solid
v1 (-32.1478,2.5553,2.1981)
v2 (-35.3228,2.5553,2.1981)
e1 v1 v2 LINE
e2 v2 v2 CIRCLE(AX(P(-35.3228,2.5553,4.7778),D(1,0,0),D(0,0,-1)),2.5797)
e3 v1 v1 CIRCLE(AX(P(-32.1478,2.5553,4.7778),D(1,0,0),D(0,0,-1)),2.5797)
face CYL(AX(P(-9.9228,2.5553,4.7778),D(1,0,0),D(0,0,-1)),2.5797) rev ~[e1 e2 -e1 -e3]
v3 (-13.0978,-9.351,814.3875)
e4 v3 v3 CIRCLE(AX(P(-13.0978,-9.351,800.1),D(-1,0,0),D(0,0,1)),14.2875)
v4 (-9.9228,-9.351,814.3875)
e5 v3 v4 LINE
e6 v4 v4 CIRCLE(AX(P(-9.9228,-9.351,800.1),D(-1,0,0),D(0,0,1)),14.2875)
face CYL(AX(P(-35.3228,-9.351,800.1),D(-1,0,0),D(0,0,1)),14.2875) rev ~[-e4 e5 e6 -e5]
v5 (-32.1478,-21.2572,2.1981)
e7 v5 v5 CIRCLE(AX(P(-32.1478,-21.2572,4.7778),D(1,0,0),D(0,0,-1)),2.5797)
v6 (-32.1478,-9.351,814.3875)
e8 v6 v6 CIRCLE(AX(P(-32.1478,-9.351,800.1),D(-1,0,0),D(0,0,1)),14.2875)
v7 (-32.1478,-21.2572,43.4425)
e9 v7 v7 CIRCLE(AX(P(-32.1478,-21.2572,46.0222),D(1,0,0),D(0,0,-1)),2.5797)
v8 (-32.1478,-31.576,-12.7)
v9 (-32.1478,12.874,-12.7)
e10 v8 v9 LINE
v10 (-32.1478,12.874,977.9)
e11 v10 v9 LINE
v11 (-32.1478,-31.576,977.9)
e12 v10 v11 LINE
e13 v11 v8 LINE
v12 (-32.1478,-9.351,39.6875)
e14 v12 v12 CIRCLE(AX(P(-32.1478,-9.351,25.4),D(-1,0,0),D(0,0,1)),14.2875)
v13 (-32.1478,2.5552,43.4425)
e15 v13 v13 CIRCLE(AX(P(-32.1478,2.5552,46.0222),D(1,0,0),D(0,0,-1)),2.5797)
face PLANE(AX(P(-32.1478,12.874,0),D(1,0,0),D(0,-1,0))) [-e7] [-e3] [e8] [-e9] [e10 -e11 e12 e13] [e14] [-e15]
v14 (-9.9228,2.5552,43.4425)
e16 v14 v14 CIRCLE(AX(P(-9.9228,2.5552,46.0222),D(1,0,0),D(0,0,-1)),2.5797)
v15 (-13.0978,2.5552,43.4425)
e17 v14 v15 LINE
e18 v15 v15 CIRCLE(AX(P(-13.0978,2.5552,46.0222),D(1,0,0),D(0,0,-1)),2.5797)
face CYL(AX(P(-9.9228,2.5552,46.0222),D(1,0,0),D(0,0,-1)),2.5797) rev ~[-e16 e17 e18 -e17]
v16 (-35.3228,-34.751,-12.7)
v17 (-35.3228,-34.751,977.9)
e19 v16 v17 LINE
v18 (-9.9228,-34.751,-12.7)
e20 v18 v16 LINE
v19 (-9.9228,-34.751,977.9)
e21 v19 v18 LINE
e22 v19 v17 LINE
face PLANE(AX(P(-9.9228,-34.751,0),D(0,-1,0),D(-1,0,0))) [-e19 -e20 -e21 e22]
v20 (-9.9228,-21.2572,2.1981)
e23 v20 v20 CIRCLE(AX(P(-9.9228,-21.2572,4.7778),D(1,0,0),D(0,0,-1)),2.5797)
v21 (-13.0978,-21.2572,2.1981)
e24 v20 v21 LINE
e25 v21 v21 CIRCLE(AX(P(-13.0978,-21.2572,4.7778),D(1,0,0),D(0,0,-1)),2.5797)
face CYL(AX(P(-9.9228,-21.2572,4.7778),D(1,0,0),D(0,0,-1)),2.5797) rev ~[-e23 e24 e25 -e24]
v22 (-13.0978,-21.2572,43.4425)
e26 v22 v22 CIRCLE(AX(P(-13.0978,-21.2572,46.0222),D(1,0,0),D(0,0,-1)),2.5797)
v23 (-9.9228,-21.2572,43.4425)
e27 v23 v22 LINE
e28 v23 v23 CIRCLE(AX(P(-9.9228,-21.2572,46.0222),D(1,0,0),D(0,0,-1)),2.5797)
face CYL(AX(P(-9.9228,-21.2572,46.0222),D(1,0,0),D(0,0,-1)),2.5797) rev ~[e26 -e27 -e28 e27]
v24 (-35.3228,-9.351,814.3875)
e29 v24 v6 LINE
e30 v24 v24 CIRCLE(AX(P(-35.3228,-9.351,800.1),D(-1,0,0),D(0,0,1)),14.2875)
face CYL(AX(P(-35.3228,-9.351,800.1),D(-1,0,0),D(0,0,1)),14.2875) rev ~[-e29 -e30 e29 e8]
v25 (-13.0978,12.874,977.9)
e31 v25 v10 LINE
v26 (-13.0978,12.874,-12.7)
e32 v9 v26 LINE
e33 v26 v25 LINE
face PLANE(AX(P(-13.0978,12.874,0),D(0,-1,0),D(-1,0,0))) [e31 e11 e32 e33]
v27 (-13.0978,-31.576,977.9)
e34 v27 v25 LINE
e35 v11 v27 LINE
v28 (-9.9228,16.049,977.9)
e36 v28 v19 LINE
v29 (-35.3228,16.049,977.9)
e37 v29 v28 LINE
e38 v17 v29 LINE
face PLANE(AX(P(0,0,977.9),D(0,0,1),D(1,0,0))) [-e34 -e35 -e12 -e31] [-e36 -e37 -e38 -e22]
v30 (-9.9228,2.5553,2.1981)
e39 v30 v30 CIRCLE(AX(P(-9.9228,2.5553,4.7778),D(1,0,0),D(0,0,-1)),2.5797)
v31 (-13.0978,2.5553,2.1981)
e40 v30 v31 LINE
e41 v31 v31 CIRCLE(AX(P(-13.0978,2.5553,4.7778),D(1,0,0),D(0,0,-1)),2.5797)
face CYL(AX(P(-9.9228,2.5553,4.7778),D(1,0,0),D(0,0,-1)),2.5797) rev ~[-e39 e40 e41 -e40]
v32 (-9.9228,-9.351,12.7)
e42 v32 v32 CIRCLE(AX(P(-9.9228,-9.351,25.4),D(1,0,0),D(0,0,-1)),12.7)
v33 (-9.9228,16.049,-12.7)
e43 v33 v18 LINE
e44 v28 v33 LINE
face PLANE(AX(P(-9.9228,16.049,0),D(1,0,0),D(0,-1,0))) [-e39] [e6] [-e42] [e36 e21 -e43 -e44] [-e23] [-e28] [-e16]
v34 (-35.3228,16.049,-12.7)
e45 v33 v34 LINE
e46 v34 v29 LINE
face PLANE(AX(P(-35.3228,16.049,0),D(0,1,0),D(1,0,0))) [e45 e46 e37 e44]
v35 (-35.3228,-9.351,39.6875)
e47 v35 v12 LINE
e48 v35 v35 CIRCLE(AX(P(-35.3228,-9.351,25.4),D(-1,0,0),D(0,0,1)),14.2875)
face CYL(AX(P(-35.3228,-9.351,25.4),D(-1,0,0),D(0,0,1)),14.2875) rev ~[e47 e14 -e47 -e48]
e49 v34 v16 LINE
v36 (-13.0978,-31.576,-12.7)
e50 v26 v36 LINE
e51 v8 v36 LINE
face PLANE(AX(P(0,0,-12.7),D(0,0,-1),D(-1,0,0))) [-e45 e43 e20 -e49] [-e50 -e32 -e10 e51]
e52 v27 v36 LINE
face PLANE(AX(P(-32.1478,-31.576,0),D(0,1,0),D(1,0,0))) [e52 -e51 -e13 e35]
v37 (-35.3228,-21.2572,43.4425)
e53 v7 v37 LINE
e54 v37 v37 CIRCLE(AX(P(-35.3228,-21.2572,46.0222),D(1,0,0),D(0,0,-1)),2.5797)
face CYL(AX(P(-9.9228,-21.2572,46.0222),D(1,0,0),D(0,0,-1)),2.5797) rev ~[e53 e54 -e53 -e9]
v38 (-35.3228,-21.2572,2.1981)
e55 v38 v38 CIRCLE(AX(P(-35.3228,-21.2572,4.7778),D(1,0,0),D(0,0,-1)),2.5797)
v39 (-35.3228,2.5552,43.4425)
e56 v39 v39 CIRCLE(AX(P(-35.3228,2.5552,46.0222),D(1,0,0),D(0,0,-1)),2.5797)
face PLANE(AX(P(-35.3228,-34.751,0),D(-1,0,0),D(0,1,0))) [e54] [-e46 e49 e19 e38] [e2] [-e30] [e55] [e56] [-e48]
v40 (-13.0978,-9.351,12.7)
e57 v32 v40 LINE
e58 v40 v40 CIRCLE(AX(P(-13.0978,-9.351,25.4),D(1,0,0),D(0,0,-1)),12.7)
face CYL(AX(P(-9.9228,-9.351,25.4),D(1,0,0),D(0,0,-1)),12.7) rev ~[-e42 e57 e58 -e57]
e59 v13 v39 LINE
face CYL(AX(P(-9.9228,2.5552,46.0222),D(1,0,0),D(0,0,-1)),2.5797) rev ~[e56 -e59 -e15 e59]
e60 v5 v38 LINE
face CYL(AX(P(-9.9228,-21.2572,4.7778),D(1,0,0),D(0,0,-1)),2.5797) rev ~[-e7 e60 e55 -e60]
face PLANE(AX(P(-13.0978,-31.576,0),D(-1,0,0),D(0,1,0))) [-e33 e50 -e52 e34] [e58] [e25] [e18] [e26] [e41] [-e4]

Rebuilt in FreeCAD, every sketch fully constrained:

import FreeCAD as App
import Part
import Sketcher
from FreeCAD import Vector
Q = App.Units.Quantity

doc = App.newDocument("Part")
params = doc.addObject("Spreadsheet::Sheet", "Params")
for row, (alias, value) in enumerate([
    ("sketch1_width", "1 in"),
    ("sketch1_height", "2 in"),
    ("pad1_length", "38.5 in"),
    ("sketch2_diameter", "1.125 in"),
    ("pocket1_length", "0.5 in"),
    ("sketch3_diameter", "1.125 in"),
    ("pocket2_length", "1 in"),
    ("sketch4_diameter", "1 in"),
    ("pocket3_length", "0.5 in"),
    ("sketch5_diameter", "0.203126 in"),
    ("pocket4_length", "1 in"),
    ("sketch6_width", "1 in"),
    ("sketch6_height", "2 in"),
    ("pad2_length", "0.5 in"),
], start=1):
    params.set(f"A{row}", alias)
    params.set(f"B{row}", "=" + value)
    params.setAlias(f"B{row}", alias)

body = doc.addObject("PartDesign::Body", "Body")

# Sketch on XY plane
sketch1 = body.newObject("Sketcher::SketchObject", "Sketch")
sketch1.AttachmentSupport = (doc.getObject("XY_Plane"), [""])
sketch1.MapMode = "FlatFace"
sketch1.addGeometry([
    Part.LineSegment(Vector(-10, 16, 0), Vector(-35, 16, 0)),  # 0
    Part.LineSegment(Vector(-35, 16, 0), Vector(-35, -35, 0)),  # 1
    Part.LineSegment(Vector(-35, -35, 0), Vector(-10, -35, 0)),  # 2
    Part.LineSegment(Vector(-10, -35, 0), Vector(-10, 16, 0)),  # 3
    Part.LineSegment(Vector(-32, 13, 0), Vector(-13, 13, 0)),  # 4
    Part.LineSegment(Vector(-13, 13, 0), Vector(-13, -32, 0)),  # 5
    Part.LineSegment(Vector(-13, -32, 0), Vector(-32, -32, 0)),  # 6
    Part.LineSegment(Vector(-32, -32, 0), Vector(-32, 13, 0)),  # 7
], False)
sketch1.addConstraint([
    Sketcher.Constraint("Coincident", 0, 2, 1, 1),
    Sketcher.Constraint("Coincident", 1, 2, 2, 1),
    Sketcher.Constraint("Coincident", 2, 2, 3, 1),
    Sketcher.Constraint("Coincident", 3, 2, 0, 1),
    Sketcher.Constraint("Coincident", 4, 2, 5, 1),
    Sketcher.Constraint("Coincident", 5, 2, 6, 1),
    Sketcher.Constraint("Coincident", 6, 2, 7, 1),
    Sketcher.Constraint("Coincident", 7, 2, 4, 1),
    Sketcher.Constraint("Horizontal", 0),
    Sketcher.Constraint("Vertical", 1),
    Sketcher.Constraint("Horizontal", 2),
    Sketcher.Constraint("Vertical", 3),
    Sketcher.Constraint("Horizontal", 4),
    Sketcher.Constraint("Vertical", 5),
    Sketcher.Constraint("Horizontal", 6),
    Sketcher.Constraint("Vertical", 7),
    Sketcher.Constraint("DistanceX", 0, 2, 0, 1, Q("1 in")),
    Sketcher.Constraint("DistanceY", 1, 2, 1, 1, Q("2 in")),
    Sketcher.Constraint("DistanceX", 4, 2, 3, 2, Q("0.125 in")),
    Sketcher.Constraint("DistanceY", 4, 2, 3, 2, Q("0.125 in")),
    Sketcher.Constraint("DistanceY", 2, 2, 5, 2, Q("0.125 in")),
    Sketcher.Constraint("DistanceX", 1, 2, 6, 2, Q("0.125 in")),
    Sketcher.Constraint("DistanceX", 0, 2, -1, 1, 35.3228),
    Sketcher.Constraint("DistanceY", -1, 1, 0, 2, 16.049),
])
sketch1.setExpression("Constraints[16]", "Params.sketch1_width")
sketch1.setExpression("Constraints[17]", "Params.sketch1_height")
pad1 = body.newObject("PartDesign::Pad", "Pad")
pad1.Profile = sketch1
pad1.setExpression("Length", "Params.pad1_length")

# Sketch on YZ plane
sketch2 = body.newObject("Sketcher::SketchObject", "Sketch001")
sketch2.AttachmentSupport = (doc.getObject("YZ_Plane"), [""])
sketch2.MapMode = "FlatFace"
sketch2.AttachmentOffset = App.Placement(Vector(0, 0, -35.3228), App.Rotation())
sketch2.addGeometry(Part.Circle(Vector(-9, 25, 0), Vector(0, 0, 1), 14), False)
sketch2.addConstraint([
    Sketcher.Constraint("Diameter", 0, Q("1.125 in")),
    Sketcher.Constraint("DistanceY", -1, 1, 0, 3, Q("1 in")),
    Sketcher.Constraint("DistanceX", 0, 3, -1, 1, 9.351),
])
sketch2.setExpression("Constraints[0]", "Params.sketch2_diameter")
pocket1 = body.newObject("PartDesign::Pocket", "Pocket")
pocket1.Profile = sketch2
pocket1.setExpression("Length", "Params.pocket1_length")
pocket1.Reversed = True

# Sketch on YZ plane
sketch3 = body.newObject("Sketcher::SketchObject", "Sketch002")
sketch3.AttachmentSupport = (doc.getObject("YZ_Plane"), [""])
sketch3.MapMode = "FlatFace"
sketch3.AttachmentOffset = App.Placement(Vector(0, 0, -35.3228), App.Rotation())
sketch3.addGeometry(Part.Circle(Vector(-9, 800, 0), Vector(0, 0, 1), 14), False)
sketch3.addConstraint([
    Sketcher.Constraint("Diameter", 0, Q("1.125 in")),
    Sketcher.Constraint("DistanceY", -1, 1, 0, 3, Q("31.5 in")),
    Sketcher.Constraint("DistanceX", 0, 3, -1, 1, 9.351),
])
sketch3.setExpression("Constraints[0]", "Params.sketch3_diameter")
pocket2 = body.newObject("PartDesign::Pocket", "Pocket001")
pocket2.Profile = sketch3
pocket2.setExpression("Length", "Params.pocket2_length")
pocket2.Reversed = True

# Sketch on YZ plane
sketch4 = body.newObject("Sketcher::SketchObject", "Sketch003")
sketch4.AttachmentSupport = (doc.getObject("YZ_Plane"), [""])
sketch4.MapMode = "FlatFace"
sketch4.AttachmentOffset = App.Placement(Vector(0, 0, -9.9228), App.Rotation())
sketch4.addGeometry(Part.Circle(Vector(-9, 25, 0), Vector(0, 0, 1), 13), False)
sketch4.addConstraint([
    Sketcher.Constraint("Diameter", 0, Q("1 in")),
    Sketcher.Constraint("DistanceY", -1, 1, 0, 3, Q("1 in")),
    Sketcher.Constraint("DistanceX", 0, 3, -1, 1, 9.351),
])
sketch4.setExpression("Constraints[0]", "Params.sketch4_diameter")
pocket3 = body.newObject("PartDesign::Pocket", "Pocket002")
pocket3.Profile = sketch4
pocket3.setExpression("Length", "Params.pocket3_length")

# Sketch on YZ plane
sketch5 = body.newObject("Sketcher::SketchObject", "Sketch004")
sketch5.AttachmentSupport = (doc.getObject("YZ_Plane"), [""])
sketch5.MapMode = "FlatFace"
sketch5.AttachmentOffset = App.Placement(Vector(0, 0, -9.9228), App.Rotation())
sketch5.addGeometry([
    Part.Circle(Vector(2.6, 4.8, 0), Vector(0, 0, 1), 2.6),
    Part.Circle(Vector(-21.3, 4.8, 0), Vector(0, 0, 1), 2.6),
    Part.Circle(Vector(-21.3, 46, 0), Vector(0, 0, 1), 2.6),
    Part.Circle(Vector(2.6, 46, 0), Vector(0, 0, 1), 2.6),
], False)
sketch5.addConstraint([
    Sketcher.Constraint("Equal", 0, 1),
    Sketcher.Constraint("Equal", 1, 2),
    Sketcher.Constraint("Equal", 2, 3),
    Sketcher.Constraint("Horizontal", 0, 3, 1, 3),
    Sketcher.Constraint("Horizontal", 2, 3, 3, 3),
    Sketcher.Constraint("Vertical", 1, 3, 2, 3),
    Sketcher.Constraint("Vertical", 0, 3, 3, 3),
    Sketcher.Constraint("Diameter", 0, Q("0.203126 in")),
    Sketcher.Constraint("DistanceX", 1, 3, 0, 3, Q("0.9375 in")),
    Sketcher.Constraint("DistanceX", -1, 1, 0, 3, Q("0.1006 in")),
    Sketcher.Constraint("DistanceY", -1, 1, 0, 3, Q("0.1881 in")),
    Sketcher.Constraint("DistanceY", -1, 1, 2, 3, Q("1.8119 in")),
])
sketch5.setExpression("Constraints[7]", "Params.sketch5_diameter")
pocket4 = body.newObject("PartDesign::Pocket", "Pocket003")
pocket4.Profile = sketch5
pocket4.setExpression("Length", "Params.pocket4_length")

# Sketch on XY plane
sketch6 = body.newObject("Sketcher::SketchObject", "Sketch005")
sketch6.AttachmentSupport = (doc.getObject("XY_Plane"), [""])
sketch6.MapMode = "FlatFace"
sketch6.addGeometry([
    Part.LineSegment(Vector(-35, 16, 0), Vector(-10, 16, 0)),  # 0
    Part.LineSegment(Vector(-10, 16, 0), Vector(-10, -35, 0)),  # 1
    Part.LineSegment(Vector(-10, -35, 0), Vector(-35, -35, 0)),  # 2
    Part.LineSegment(Vector(-35, -35, 0), Vector(-35, 16, 0)),  # 3
    Part.LineSegment(Vector(-32, 13, 0), Vector(-32, -32, 0)),  # 4
    Part.LineSegment(Vector(-32, -32, 0), Vector(-13, -32, 0)),  # 5
    Part.LineSegment(Vector(-13, -32, 0), Vector(-13, 13, 0)),  # 6
    Part.LineSegment(Vector(-13, 13, 0), Vector(-32, 13, 0)),  # 7
], False)
sketch6.addConstraint([
    Sketcher.Constraint("Coincident", 0, 2, 1, 1),
    Sketcher.Constraint("Coincident", 1, 2, 2, 1),
    Sketcher.Constraint("Coincident", 2, 2, 3, 1),
    Sketcher.Constraint("Coincident", 3, 2, 0, 1),
    Sketcher.Constraint("Coincident", 4, 2, 5, 1),
    Sketcher.Constraint("Coincident", 5, 2, 6, 1),
    Sketcher.Constraint("Coincident", 6, 2, 7, 1),
    Sketcher.Constraint("Coincident", 7, 2, 4, 1),
    Sketcher.Constraint("Horizontal", 0),
    Sketcher.Constraint("Vertical", 1),
    Sketcher.Constraint("Horizontal", 2),
    Sketcher.Constraint("Vertical", 3),
    Sketcher.Constraint("Vertical", 4),
    Sketcher.Constraint("Horizontal", 5),
    Sketcher.Constraint("Vertical", 6),
    Sketcher.Constraint("Horizontal", 7),
    Sketcher.Constraint("DistanceX", 0, 1, 0, 2, Q("1 in")),
    Sketcher.Constraint("DistanceY", 1, 2, 1, 1, Q("2 in")),
    Sketcher.Constraint("DistanceX", 2, 2, 4, 2, Q("0.125 in")),
    Sketcher.Constraint("DistanceY", 2, 2, 4, 2, Q("0.125 in")),
    Sketcher.Constraint("DistanceX", 5, 2, 1, 2, Q("0.125 in")),
    Sketcher.Constraint("DistanceY", 6, 2, 0, 2, Q("0.125 in")),
    Sketcher.Constraint("DistanceX", 0, 2, -1, 1, 9.9228),
    Sketcher.Constraint("DistanceY", -1, 1, 0, 2, 16.049),
])
sketch6.setExpression("Constraints[16]", "Params.sketch6_width")
sketch6.setExpression("Constraints[17]", "Params.sketch6_height")
pad2 = body.newObject("PartDesign::Pad", "Pad001")
pad2.Profile = sketch6
pad2.setExpression("Length", "Params.pad2_length")
pad2.Reversed = True

doc.recompute()
